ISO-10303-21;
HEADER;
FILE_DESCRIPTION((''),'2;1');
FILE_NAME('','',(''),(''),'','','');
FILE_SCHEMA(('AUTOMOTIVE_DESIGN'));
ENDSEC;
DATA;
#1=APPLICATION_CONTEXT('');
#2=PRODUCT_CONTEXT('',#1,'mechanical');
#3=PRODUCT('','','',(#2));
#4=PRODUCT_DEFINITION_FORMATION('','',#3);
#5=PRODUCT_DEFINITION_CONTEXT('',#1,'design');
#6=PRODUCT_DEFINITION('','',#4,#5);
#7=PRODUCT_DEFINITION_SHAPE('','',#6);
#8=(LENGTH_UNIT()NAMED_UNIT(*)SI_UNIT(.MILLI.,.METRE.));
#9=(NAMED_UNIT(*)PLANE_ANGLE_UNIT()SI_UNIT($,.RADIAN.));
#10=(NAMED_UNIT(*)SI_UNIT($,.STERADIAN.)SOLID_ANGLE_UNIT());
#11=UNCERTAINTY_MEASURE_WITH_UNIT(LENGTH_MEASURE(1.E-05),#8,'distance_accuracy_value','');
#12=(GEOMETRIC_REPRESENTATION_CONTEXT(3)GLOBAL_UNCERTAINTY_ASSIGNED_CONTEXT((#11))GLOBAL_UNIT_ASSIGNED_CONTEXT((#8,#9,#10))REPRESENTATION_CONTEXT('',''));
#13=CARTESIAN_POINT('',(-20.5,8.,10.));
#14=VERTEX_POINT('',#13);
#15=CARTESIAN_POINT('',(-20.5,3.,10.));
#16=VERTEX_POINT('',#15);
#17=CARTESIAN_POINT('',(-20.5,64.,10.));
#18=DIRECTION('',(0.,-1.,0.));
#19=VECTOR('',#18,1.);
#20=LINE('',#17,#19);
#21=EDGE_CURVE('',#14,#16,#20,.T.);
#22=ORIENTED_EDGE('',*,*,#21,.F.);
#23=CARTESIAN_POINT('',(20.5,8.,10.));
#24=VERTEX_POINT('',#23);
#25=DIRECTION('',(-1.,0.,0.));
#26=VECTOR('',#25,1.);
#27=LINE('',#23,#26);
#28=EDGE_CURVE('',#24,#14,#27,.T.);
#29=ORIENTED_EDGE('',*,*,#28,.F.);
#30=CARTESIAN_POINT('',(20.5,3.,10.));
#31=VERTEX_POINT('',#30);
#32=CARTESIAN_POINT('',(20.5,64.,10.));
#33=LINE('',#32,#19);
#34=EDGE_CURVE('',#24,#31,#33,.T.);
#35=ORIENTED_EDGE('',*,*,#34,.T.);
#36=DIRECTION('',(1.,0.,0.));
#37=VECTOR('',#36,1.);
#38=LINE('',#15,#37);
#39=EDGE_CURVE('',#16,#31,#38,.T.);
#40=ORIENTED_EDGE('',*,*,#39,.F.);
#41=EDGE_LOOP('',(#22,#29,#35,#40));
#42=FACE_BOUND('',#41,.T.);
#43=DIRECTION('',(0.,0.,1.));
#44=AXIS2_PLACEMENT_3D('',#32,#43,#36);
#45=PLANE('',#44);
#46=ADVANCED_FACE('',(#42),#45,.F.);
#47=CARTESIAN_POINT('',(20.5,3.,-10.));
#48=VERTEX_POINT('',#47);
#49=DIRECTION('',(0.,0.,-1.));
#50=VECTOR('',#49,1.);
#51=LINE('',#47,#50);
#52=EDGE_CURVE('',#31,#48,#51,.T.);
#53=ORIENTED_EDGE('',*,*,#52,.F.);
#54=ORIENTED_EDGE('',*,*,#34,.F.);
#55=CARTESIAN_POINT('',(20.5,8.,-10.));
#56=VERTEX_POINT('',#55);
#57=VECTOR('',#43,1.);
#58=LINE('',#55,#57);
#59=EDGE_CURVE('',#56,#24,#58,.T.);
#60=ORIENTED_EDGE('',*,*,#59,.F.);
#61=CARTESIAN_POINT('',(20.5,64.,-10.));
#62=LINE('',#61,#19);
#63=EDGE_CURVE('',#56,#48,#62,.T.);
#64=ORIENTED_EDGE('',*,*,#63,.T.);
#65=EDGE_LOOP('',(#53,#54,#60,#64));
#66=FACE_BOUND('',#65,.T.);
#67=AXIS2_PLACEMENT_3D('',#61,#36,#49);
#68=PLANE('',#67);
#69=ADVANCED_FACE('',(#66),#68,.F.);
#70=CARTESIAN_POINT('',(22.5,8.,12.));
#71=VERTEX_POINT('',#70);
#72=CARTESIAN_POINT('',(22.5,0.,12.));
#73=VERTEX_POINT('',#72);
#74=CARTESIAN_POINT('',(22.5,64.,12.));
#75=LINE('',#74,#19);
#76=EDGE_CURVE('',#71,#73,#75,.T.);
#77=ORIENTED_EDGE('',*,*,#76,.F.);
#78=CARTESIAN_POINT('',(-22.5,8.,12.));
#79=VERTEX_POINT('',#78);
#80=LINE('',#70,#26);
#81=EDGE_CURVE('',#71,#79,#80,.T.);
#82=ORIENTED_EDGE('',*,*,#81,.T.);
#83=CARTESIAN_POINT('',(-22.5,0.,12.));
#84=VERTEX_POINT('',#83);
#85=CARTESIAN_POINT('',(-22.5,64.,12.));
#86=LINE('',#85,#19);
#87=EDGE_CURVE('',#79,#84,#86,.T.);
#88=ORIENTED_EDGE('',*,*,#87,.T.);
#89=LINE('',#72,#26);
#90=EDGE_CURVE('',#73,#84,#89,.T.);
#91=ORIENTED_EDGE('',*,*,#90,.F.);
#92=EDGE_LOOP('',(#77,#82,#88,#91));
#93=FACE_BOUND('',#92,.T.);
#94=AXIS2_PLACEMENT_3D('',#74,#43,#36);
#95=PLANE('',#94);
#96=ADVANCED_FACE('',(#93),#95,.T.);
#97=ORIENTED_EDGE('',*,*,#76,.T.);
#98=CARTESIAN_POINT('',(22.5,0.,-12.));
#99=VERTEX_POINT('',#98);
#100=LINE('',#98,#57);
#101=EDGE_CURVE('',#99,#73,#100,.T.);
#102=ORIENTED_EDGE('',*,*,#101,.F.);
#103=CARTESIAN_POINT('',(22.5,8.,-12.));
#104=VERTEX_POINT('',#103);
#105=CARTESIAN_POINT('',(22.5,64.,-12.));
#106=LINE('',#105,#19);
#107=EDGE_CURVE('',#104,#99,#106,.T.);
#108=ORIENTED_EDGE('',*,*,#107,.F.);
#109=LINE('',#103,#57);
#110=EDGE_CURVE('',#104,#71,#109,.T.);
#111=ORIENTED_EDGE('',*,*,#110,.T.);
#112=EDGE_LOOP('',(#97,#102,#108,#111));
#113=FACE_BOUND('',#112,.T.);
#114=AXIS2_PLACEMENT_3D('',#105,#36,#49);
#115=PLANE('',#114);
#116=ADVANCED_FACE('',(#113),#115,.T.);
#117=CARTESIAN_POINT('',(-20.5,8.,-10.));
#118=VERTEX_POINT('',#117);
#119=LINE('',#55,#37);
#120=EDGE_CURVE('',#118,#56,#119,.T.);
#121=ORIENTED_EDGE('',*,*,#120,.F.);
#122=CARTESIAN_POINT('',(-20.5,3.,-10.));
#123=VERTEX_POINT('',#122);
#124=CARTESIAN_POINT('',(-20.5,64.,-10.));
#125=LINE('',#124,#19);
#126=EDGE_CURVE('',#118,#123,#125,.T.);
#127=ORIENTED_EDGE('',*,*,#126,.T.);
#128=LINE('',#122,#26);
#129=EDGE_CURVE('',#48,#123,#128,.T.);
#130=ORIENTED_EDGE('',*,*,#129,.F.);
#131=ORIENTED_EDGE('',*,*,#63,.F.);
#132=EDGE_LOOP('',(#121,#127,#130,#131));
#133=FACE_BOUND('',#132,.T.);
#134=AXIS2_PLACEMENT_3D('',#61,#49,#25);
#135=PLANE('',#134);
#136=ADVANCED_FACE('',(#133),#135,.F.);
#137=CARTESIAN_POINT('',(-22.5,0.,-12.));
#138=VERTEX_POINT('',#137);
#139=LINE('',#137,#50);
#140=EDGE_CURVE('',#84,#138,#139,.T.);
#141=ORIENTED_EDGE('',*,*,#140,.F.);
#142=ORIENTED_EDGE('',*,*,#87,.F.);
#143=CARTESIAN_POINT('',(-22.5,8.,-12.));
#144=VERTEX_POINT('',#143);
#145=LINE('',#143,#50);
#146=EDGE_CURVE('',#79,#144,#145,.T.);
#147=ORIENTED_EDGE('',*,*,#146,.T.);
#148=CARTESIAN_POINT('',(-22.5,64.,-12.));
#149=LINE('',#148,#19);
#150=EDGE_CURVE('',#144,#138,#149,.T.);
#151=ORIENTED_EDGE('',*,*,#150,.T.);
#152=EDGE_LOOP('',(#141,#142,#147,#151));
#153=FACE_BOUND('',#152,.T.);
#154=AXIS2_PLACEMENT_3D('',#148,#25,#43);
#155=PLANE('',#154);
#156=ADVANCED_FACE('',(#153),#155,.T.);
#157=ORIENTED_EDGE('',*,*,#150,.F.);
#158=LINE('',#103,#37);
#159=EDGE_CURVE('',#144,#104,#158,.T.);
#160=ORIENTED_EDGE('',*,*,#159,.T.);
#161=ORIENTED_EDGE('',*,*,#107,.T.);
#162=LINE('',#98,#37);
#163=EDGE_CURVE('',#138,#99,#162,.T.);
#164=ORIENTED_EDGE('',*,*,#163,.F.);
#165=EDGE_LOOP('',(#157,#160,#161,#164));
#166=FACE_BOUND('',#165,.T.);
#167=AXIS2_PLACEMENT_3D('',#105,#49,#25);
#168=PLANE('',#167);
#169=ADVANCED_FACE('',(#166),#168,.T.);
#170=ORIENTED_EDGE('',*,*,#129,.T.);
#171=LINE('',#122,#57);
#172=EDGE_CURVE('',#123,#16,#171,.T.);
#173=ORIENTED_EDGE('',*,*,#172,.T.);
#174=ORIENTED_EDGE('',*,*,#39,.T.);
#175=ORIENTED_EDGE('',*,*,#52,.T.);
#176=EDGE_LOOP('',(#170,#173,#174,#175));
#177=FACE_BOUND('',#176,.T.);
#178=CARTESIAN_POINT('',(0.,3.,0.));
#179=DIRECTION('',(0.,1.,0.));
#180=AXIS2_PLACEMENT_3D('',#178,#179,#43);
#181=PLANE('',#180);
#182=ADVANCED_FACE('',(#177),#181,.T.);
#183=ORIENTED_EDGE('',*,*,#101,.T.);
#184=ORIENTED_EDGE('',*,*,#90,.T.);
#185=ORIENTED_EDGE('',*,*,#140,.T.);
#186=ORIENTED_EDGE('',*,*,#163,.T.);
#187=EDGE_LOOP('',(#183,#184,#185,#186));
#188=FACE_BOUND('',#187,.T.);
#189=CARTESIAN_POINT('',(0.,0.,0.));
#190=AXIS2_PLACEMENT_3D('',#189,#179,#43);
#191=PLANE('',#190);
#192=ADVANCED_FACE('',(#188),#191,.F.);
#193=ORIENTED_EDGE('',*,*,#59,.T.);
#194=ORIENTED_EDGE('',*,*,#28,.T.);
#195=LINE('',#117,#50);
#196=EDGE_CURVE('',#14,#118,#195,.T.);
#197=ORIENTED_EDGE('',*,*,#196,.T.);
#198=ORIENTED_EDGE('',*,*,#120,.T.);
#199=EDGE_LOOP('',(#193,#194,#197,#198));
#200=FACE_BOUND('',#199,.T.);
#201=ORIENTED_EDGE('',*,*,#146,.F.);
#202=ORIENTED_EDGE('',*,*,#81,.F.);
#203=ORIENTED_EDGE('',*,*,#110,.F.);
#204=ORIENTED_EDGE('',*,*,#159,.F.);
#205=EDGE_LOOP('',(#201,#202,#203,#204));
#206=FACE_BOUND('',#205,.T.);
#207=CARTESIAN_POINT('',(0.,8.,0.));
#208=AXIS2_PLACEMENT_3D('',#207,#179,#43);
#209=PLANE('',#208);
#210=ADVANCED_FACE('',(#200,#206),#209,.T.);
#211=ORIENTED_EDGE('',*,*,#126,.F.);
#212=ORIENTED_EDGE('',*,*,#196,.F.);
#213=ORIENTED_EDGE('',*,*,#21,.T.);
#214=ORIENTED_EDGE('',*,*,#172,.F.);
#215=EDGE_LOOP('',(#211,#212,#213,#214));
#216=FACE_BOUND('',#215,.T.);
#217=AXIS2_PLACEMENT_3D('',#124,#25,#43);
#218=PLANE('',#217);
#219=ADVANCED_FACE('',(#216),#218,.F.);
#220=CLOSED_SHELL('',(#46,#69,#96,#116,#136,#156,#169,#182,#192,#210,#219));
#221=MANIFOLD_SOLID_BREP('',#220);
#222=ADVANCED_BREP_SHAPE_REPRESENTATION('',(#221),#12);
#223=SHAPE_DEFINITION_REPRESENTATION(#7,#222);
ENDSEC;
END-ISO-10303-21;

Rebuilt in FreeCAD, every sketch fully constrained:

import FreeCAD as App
import Part
import Sketcher


def add_polygon(sketch, points):
    """Adds a closed chain of lines whose ends are joined by coincident constraints."""
    first, n = sketch.GeometryCount, len(points)
    for a, b in zip(points, points[1:] + points[:1]):
        sketch.addGeometry(Part.LineSegment(App.Vector(*a, 0), App.Vector(*b, 0)), False)
    for i in range(n):
        sketch.addConstraint(Sketcher.Constraint("Coincident", first + i, 2, first + (i + 1) % n, 1))

doc = App.newDocument("Part")
body = doc.addObject("PartDesign::Body", "Body")

# Sketch on XZ plane
sketch1 = body.newObject("Sketcher::SketchObject", "Sketch")
sketch1.AttachmentSupport = (doc.getObject("XZ_Plane"), [""])
sketch1.MapMode = "FlatFace"
add_polygon(sketch1, [(-20, -10), (-20, 10), (20, 10), (20, -10)])  # lines 0-3
sketch1.addConstraint([
    Sketcher.Constraint("Vertical", 0),
    Sketcher.Constraint("Horizontal", 1),
    Sketcher.Constraint("Vertical", 2),
    Sketcher.Constraint("Horizontal", 3),
    Sketcher.Constraint("Symmetric", 0, 2, 2, 2, -1, 1),
    Sketcher.Constraint("DistanceX", 1, 1, 1, 2, 41.0),
    Sketcher.Constraint("DistanceY", 0, 1, 0, 2, 20.0),
])
pad1 = body.newObject("PartDesign::Pad", "Pad")
pad1.Profile = sketch1
pad1.Length = 3
pad1.Reversed = True

# Sketch on XZ plane
sketch2 = body.newObject("Sketcher::SketchObject", "Sketch001")
sketch2.AttachmentSupport = (doc.getObject("XZ_Plane"), [""])
sketch2.MapMode = "FlatFace"
add_polygon(sketch2, [(-22, 12), (-22, -12), (22, -12), (22, 12)])  # lines 0-3
add_polygon(sketch2, [(20, -10), (-20, -10), (-20, 10), (20, 10)])  # lines 4-7
sketch2.addConstraint([
    Sketcher.Constraint("Vertical", 0),
    Sketcher.Constraint("Horizontal", 1),
    Sketcher.Constraint("Vertical", 2),
    Sketcher.Constraint("Horizontal", 3),
    Sketcher.Constraint("Horizontal", 4),
    Sketcher.Constraint("Vertical", 5),
    Sketcher.Constraint("Horizontal", 6),
    Sketcher.Constraint("Vertical", 7),
    Sketcher.Constraint("Symmetric", 0, 2, 2, 2, -1, 1),
    Sketcher.Constraint("Symmetric", 4, 2, 6, 2, -1, 1),
    Sketcher.Constraint("DistanceX", 1, 1, 1, 2, 45.0),
    Sketcher.Constraint("DistanceX", 4, 2, 4, 1, 41.0),
    Sketcher.Constraint("DistanceY", 0, 2, 0, 1, 24.0),
    Sketcher.Constraint("DistanceY", 5, 1, 5, 2, 20.0),
])
pad2 = body.newObject("PartDesign::Pad", "Pad001")
pad2.Profile = sketch2
pad2.Length = 8
pad2.Reversed = True

doc.recompute()
